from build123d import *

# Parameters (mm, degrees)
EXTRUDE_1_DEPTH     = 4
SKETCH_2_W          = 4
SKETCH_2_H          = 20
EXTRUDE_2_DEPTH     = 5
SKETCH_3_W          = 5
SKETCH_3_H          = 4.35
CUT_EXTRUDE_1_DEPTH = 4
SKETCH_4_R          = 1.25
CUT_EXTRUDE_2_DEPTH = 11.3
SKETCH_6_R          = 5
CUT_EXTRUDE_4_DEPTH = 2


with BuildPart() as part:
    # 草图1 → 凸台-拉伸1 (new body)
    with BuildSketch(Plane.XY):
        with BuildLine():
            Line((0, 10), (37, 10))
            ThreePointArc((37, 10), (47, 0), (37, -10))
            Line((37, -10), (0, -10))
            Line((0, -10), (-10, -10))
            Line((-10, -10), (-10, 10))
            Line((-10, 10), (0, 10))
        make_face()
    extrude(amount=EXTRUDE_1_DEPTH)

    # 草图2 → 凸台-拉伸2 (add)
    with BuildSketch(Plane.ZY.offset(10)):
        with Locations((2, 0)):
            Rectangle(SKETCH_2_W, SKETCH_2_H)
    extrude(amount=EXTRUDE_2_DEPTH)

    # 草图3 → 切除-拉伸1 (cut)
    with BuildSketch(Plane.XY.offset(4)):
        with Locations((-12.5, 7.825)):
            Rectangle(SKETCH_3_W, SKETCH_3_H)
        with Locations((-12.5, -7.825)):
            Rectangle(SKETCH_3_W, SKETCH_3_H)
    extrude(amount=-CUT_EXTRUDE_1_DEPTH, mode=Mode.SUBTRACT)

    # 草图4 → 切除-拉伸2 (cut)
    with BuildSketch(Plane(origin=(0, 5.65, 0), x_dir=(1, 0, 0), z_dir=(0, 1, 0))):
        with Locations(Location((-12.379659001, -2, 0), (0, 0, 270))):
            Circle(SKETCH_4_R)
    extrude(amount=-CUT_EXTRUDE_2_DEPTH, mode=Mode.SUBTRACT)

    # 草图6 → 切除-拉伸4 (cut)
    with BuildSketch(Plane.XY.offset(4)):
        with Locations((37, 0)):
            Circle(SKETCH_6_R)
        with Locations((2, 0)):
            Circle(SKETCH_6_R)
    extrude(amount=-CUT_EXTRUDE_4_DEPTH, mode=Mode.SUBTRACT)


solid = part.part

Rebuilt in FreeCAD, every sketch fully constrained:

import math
import FreeCAD as App
import Part
import Sketcher
from FreeCAD import Vector
Q = App.Units.Quantity

doc = App.newDocument("Part")
body = doc.addObject("PartDesign::Body", "Body")

# Sketch on XY plane
sketch1 = doc.addObject("Sketcher::SketchObject", "Sketch")
body.addObject(sketch1)
sketch1.AttachmentSupport = (doc.XY_Plane, [""])
sketch1.MapMode = "FlatFace"
sketch1.addGeometry([
    Part.ArcOfCircle(Part.Circle(Vector(37, 0, 0), Vector(0, 0, 1), 10), math.radians(-90), math.radians(90)),
    Part.LineSegment(Vector(37, 10, 0), Vector(-10, 10, 0)),
    Part.LineSegment(Vector(-10, 10, 0), Vector(-10, -10, 0)),
    Part.LineSegment(Vector(-10, -10, 0), Vector(37, -10, 0)),
], False)
sketch1.addConstraint([
    Sketcher.Constraint("Tangent", 0, 2, 1, 1),
    Sketcher.Constraint("Coincident", 1, 2, 2, 1),
    Sketcher.Constraint("Coincident", 2, 2, 3, 1),
    Sketcher.Constraint("Tangent", 3, 2, 0, 1),
    Sketcher.Constraint("Horizontal", 1),
    Sketcher.Constraint("Vertical", 2),
    Sketcher.Constraint("Horizontal", 3),
    Sketcher.Constraint("PointOnObject", 0, 3, -1),
    Sketcher.Constraint("Radius", 0, Q("10 mm")),
    Sketcher.Constraint("DistanceX", 1, 2, 1, 1, Q("47 mm")),
    Sketcher.Constraint("DistanceX", -1, 1, 0, 3, Q("37 mm")),
])
pad1 = doc.addObject("PartDesign::Pad", "Pad")
body.addObject(pad1)
pad1.Profile = sketch1
pad1.Length = 4

# Sketch on YZ plane
sketch2 = doc.addObject("Sketcher::SketchObject", "Sketch001")
body.addObject(sketch2)
sketch2.AttachmentSupport = (doc.YZ_Plane, [""])
sketch2.MapMode = "FlatFace"
sketch2.AttachmentOffset = App.Placement(Vector(0, 0, -10), App.Rotation())
sketch2.addGeometry([
    Part.LineSegment(Vector(10, 0, 0), Vector(-10, 0, 0)),
    Part.LineSegment(Vector(-10, 0, 0), Vector(-10, 4, 0)),
    Part.LineSegment(Vector(-10, 4, 0), Vector(10, 4, 0)),
    Part.LineSegment(Vector(10, 4, 0), Vector(10, 0, 0)),
], False)
sketch2.addConstraint([
    Sketcher.Constraint("Coincident", 0, 2, 1, 1),
    Sketcher.Constraint("Coincident", 1, 2, 2, 1),
    Sketcher.Constraint("Coincident", 2, 2, 3, 1),
    Sketcher.Constraint("Coincident", 3, 2, 0, 1),
    Sketcher.Constraint("Horizontal", 0),
    Sketcher.Constraint("Vertical", 1),
    Sketcher.Constraint("Horizontal", 2),
    Sketcher.Constraint("Vertical", 3),
    Sketcher.Constraint("Symmetric", 0, 2, 3, 2, -1, 1),
    Sketcher.Constraint("DistanceX", 0, 2, 0, 1, Q("20 mm")),
    Sketcher.Constraint("DistanceY", 1, 1, 1, 2, Q("4 mm")),
])
pad2 = doc.addObject("PartDesign::Pad", "Pad001")
body.addObject(pad2)
pad2.Profile = sketch2
pad2.Length = 5
pad2.Reversed = True

# Sketch on XY plane
sketch3 = doc.addObject("Sketcher::SketchObject", "Sketch002")
body.addObject(sketch3)
sketch3.AttachmentSupport = (doc.XY_Plane, [""])
sketch3.MapMode = "FlatFace"
sketch3.AttachmentOffset = App.Placement(Vector(0, 0, 4), App.Rotation())
sketch3.addGeometry([
    Part.LineSegment(Vector(-15, 10, 0), Vector(-15, 5.7, 0)),  # 0
    Part.LineSegment(Vector(-15, 5.7, 0), Vector(-10, 5.7, 0)),  # 1
    Part.LineSegment(Vector(-10, 5.7, 0), Vector(-10, 10, 0)),  # 2
    Part.LineSegment(Vector(-10, 10, 0), Vector(-15, 10, 0)),  # 3
    Part.LineSegment(Vector(-15, -5.7, 0), Vector(-15, -10, 0)),  # 4
    Part.LineSegment(Vector(-15, -10, 0), Vector(-10, -10, 0)),  # 5
    Part.LineSegment(Vector(-10, -10, 0), Vector(-10, -5.7, 0)),  # 6
    Part.LineSegment(Vector(-10, -5.7, 0), Vector(-15, -5.7, 0)),  # 7
], False)
sketch3.addConstraint([
    Sketcher.Constraint("Coincident", 0, 2, 1, 1),
    Sketcher.Constraint("Coincident", 1, 2, 2, 1),
    Sketcher.Constraint("Coincident", 2, 2, 3, 1),
    Sketcher.Constraint("Coincident", 3, 2, 0, 1),
    Sketcher.Constraint("Coincident", 4, 2, 5, 1),
    Sketcher.Constraint("Coincident", 5, 2, 6, 1),
    Sketcher.Constraint("Coincident", 6, 2, 7, 1),
    Sketcher.Constraint("Coincident", 7, 2, 4, 1),
    Sketcher.Constraint("Vertical", 0),
    Sketcher.Constraint("Horizontal", 1),
    Sketcher.Constraint("Vertical", 2),
    Sketcher.Constraint("Horizontal", 3),
    Sketcher.Constraint("Vertical", 4),
    Sketcher.Constraint("Horizontal", 5),
    Sketcher.Constraint("Vertical", 6),
    Sketcher.Constraint("Horizontal", 7),
    Sketcher.Constraint("Symmetric", 3, 2, 4, 2, -1),
    Sketcher.Constraint("Symmetric", 1, 2, 6, 2, -1),
    Sketcher.Constraint("DistanceX", 1, 1, 1, 2, Q("5 mm")),
    Sketcher.Constraint("DistanceX", 0, 2, -1, 1, Q("15 mm")),
    Sketcher.Constraint("DistanceY", -1, 1, 2, 2, Q("10 mm")),
    Sketcher.Constraint("DistanceY", 0, 2, 0, 1, Q("4.35 mm")),
])
pocket1 = doc.addObject("PartDesign::Pocket", "Pocket")
body.addObject(pocket1)
pocket1.Profile = sketch3
pocket1.Length = 4

# Sketch on XZ plane
sketch4 = doc.addObject("Sketcher::SketchObject", "Sketch003")
body.addObject(sketch4)
sketch4.AttachmentSupport = (doc.XZ_Plane, [""])
sketch4.MapMode = "FlatFace"
sketch4.AttachmentOffset = App.Placement(Vector(0, 0, -5.65), App.Rotation())
sketch4.addGeometry(Part.Circle(Vector(-12.4, 2, 0), Vector(0, 0, 1), 1.2), False)
sketch4.addConstraint([
    Sketcher.Constraint("Diameter", 0, Q("2.5 mm")),
    Sketcher.Constraint("DistanceY", -1, 1, 0, 3, Q("2 mm")),
    Sketcher.Constraint("DistanceX", 0, 3, -1, 1, Q("12.379659 mm")),
])
pocket2 = doc.addObject("PartDesign::Pocket", "Pocket001")
body.addObject(pocket2)
pocket2.Profile = sketch4
pocket2.Length = 11.3
pocket2.Reversed = True

# Sketch on XY plane
sketch5 = doc.addObject("Sketcher::SketchObject", "Sketch004")
body.addObject(sketch5)
sketch5.AttachmentSupport = (doc.XY_Plane, [""])
sketch5.MapMode = "FlatFace"
sketch5.AttachmentOffset = App.Placement(Vector(0, 0, 4), App.Rotation())
sketch5.addGeometry([
    Part.Circle(Vector(37, 0, 0), Vector(0, 0, 1), 5),
    Part.Circle(Vector(2, 0, 0), Vector(0, 0, 1), 5),
], False)
sketch5.addConstraint([
    Sketcher.Constraint("Equal", 0, 1),
    Sketcher.Constraint("PointOnObject", 0, 3, -1),
    Sketcher.Constraint("PointOnObject", 1, 3, -1),
    Sketcher.Constraint("Diameter", 0, Q("10 mm")),
    Sketcher.Constraint("DistanceX", -1, 1, 0, 3, Q("37 mm")),
    Sketcher.Constraint("DistanceX", -1, 1, 1, 3, Q("2 mm")),
])
pocket3 = doc.addObject("PartDesign::Pocket", "Pocket002")
body.addObject(pocket3)
pocket3.Profile = sketch5
pocket3.Length = 2

doc.recompute()
